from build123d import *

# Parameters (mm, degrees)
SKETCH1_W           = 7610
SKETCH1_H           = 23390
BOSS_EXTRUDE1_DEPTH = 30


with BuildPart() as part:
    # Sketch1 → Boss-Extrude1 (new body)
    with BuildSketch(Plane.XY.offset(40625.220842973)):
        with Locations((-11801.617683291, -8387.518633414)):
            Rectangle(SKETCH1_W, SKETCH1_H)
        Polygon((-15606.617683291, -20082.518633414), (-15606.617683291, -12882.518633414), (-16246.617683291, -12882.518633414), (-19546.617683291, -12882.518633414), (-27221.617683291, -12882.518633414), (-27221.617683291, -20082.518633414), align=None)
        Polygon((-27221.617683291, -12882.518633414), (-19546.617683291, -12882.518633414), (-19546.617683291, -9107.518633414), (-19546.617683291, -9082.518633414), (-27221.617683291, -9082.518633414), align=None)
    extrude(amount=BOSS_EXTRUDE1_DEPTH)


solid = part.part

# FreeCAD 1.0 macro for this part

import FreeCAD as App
import Part
import Sketcher

V = App.Vector
Q = App.Units.Quantity

doc = App.newDocument("Part")
body = doc.addObject("PartDesign::Body", "Body")

# Sketch on XY plane
sketch1 = doc.addObject("Sketcher::SketchObject", "Sketch")
body.addObject(sketch1)
sketch1.AttachmentSupport = (doc.XY_Plane, [""])
sketch1.MapMode = "FlatFace"
sketch1.AttachmentOffset = App.Placement(V(0, 0, 40625.220843), App.Rotation())
sketch1.addGeometry([
    Part.LineSegment(V(-15607, 3307, 0), V(-15607, -12883, 0)),  # 0
    Part.LineSegment(V(-15607, -12883, 0), V(-19547, -12883, 0)),  # 1
    Part.LineSegment(V(-19547, -12883, 0), V(-19547, -9083, 0)),  # 2
    Part.LineSegment(V(-19547, -9083, 0), V(-27222, -9083, 0)),  # 3
    Part.LineSegment(V(-27222, -9083, 0), V(-27222, -20083, 0)),  # 4
    Part.LineSegment(V(-27222, -20083, 0), V(-7997, -20083, 0)),  # 5
    Part.LineSegment(V(-7997, -20083, 0), V(-7997, 3307, 0)),  # 6
    Part.LineSegment(V(-7997, 3307, 0), V(-15607, 3307, 0)),  # 7
], False)
sketch1.addConstraint([
    Sketcher.Constraint("Coincident", 0, 2, 1, 1),
    Sketcher.Constraint("Coincident", 1, 2, 2, 1),
    Sketcher.Constraint("Coincident", 2, 2, 3, 1),
    Sketcher.Constraint("Coincident", 3, 2, 4, 1),
    Sketcher.Constraint("Coincident", 4, 2, 5, 1),
    Sketcher.Constraint("Coincident", 5, 2, 6, 1),
    Sketcher.Constraint("Coincident", 6, 2, 7, 1),
    Sketcher.Constraint("Coincident", 7, 2, 0, 1),
    Sketcher.Constraint("Vertical", 0),
    Sketcher.Constraint("Horizontal", 1),
    Sketcher.Constraint("Vertical", 2),
    Sketcher.Constraint("Horizontal", 3),
    Sketcher.Constraint("Vertical", 4),
    Sketcher.Constraint("Horizontal", 5),
    Sketcher.Constraint("Vertical", 6),
    Sketcher.Constraint("Horizontal", 7),
    Sketcher.Constraint("DistanceX", 1, 2, 1, 1, Q("3940 mm")),
    Sketcher.Constraint("DistanceX", 3, 2, 3, 1, Q("7675 mm")),
    Sketcher.Constraint("DistanceX", 5, 1, 5, 2, Q("19225 mm")),
    Sketcher.Constraint("DistanceY", 0, 2, 0, 1, Q("16190 mm")),
    Sketcher.Constraint("DistanceY", 2, 1, 2, 2, Q("3800 mm")),
    Sketcher.Constraint("DistanceY", 4, 2, 4, 1, Q("11000 mm")),
    Sketcher.Constraint("DistanceX", 0, 2, -1, 1, Q("15606.617683 mm")),
    Sketcher.Constraint("DistanceY", 0, 2, -1, 1, Q("12882.518633 mm")),
])
pad1 = doc.addObject("PartDesign::Pad", "Pad")
body.addObject(pad1)
pad1.Profile = sketch1
pad1.Length = 30

doc.recompute()
